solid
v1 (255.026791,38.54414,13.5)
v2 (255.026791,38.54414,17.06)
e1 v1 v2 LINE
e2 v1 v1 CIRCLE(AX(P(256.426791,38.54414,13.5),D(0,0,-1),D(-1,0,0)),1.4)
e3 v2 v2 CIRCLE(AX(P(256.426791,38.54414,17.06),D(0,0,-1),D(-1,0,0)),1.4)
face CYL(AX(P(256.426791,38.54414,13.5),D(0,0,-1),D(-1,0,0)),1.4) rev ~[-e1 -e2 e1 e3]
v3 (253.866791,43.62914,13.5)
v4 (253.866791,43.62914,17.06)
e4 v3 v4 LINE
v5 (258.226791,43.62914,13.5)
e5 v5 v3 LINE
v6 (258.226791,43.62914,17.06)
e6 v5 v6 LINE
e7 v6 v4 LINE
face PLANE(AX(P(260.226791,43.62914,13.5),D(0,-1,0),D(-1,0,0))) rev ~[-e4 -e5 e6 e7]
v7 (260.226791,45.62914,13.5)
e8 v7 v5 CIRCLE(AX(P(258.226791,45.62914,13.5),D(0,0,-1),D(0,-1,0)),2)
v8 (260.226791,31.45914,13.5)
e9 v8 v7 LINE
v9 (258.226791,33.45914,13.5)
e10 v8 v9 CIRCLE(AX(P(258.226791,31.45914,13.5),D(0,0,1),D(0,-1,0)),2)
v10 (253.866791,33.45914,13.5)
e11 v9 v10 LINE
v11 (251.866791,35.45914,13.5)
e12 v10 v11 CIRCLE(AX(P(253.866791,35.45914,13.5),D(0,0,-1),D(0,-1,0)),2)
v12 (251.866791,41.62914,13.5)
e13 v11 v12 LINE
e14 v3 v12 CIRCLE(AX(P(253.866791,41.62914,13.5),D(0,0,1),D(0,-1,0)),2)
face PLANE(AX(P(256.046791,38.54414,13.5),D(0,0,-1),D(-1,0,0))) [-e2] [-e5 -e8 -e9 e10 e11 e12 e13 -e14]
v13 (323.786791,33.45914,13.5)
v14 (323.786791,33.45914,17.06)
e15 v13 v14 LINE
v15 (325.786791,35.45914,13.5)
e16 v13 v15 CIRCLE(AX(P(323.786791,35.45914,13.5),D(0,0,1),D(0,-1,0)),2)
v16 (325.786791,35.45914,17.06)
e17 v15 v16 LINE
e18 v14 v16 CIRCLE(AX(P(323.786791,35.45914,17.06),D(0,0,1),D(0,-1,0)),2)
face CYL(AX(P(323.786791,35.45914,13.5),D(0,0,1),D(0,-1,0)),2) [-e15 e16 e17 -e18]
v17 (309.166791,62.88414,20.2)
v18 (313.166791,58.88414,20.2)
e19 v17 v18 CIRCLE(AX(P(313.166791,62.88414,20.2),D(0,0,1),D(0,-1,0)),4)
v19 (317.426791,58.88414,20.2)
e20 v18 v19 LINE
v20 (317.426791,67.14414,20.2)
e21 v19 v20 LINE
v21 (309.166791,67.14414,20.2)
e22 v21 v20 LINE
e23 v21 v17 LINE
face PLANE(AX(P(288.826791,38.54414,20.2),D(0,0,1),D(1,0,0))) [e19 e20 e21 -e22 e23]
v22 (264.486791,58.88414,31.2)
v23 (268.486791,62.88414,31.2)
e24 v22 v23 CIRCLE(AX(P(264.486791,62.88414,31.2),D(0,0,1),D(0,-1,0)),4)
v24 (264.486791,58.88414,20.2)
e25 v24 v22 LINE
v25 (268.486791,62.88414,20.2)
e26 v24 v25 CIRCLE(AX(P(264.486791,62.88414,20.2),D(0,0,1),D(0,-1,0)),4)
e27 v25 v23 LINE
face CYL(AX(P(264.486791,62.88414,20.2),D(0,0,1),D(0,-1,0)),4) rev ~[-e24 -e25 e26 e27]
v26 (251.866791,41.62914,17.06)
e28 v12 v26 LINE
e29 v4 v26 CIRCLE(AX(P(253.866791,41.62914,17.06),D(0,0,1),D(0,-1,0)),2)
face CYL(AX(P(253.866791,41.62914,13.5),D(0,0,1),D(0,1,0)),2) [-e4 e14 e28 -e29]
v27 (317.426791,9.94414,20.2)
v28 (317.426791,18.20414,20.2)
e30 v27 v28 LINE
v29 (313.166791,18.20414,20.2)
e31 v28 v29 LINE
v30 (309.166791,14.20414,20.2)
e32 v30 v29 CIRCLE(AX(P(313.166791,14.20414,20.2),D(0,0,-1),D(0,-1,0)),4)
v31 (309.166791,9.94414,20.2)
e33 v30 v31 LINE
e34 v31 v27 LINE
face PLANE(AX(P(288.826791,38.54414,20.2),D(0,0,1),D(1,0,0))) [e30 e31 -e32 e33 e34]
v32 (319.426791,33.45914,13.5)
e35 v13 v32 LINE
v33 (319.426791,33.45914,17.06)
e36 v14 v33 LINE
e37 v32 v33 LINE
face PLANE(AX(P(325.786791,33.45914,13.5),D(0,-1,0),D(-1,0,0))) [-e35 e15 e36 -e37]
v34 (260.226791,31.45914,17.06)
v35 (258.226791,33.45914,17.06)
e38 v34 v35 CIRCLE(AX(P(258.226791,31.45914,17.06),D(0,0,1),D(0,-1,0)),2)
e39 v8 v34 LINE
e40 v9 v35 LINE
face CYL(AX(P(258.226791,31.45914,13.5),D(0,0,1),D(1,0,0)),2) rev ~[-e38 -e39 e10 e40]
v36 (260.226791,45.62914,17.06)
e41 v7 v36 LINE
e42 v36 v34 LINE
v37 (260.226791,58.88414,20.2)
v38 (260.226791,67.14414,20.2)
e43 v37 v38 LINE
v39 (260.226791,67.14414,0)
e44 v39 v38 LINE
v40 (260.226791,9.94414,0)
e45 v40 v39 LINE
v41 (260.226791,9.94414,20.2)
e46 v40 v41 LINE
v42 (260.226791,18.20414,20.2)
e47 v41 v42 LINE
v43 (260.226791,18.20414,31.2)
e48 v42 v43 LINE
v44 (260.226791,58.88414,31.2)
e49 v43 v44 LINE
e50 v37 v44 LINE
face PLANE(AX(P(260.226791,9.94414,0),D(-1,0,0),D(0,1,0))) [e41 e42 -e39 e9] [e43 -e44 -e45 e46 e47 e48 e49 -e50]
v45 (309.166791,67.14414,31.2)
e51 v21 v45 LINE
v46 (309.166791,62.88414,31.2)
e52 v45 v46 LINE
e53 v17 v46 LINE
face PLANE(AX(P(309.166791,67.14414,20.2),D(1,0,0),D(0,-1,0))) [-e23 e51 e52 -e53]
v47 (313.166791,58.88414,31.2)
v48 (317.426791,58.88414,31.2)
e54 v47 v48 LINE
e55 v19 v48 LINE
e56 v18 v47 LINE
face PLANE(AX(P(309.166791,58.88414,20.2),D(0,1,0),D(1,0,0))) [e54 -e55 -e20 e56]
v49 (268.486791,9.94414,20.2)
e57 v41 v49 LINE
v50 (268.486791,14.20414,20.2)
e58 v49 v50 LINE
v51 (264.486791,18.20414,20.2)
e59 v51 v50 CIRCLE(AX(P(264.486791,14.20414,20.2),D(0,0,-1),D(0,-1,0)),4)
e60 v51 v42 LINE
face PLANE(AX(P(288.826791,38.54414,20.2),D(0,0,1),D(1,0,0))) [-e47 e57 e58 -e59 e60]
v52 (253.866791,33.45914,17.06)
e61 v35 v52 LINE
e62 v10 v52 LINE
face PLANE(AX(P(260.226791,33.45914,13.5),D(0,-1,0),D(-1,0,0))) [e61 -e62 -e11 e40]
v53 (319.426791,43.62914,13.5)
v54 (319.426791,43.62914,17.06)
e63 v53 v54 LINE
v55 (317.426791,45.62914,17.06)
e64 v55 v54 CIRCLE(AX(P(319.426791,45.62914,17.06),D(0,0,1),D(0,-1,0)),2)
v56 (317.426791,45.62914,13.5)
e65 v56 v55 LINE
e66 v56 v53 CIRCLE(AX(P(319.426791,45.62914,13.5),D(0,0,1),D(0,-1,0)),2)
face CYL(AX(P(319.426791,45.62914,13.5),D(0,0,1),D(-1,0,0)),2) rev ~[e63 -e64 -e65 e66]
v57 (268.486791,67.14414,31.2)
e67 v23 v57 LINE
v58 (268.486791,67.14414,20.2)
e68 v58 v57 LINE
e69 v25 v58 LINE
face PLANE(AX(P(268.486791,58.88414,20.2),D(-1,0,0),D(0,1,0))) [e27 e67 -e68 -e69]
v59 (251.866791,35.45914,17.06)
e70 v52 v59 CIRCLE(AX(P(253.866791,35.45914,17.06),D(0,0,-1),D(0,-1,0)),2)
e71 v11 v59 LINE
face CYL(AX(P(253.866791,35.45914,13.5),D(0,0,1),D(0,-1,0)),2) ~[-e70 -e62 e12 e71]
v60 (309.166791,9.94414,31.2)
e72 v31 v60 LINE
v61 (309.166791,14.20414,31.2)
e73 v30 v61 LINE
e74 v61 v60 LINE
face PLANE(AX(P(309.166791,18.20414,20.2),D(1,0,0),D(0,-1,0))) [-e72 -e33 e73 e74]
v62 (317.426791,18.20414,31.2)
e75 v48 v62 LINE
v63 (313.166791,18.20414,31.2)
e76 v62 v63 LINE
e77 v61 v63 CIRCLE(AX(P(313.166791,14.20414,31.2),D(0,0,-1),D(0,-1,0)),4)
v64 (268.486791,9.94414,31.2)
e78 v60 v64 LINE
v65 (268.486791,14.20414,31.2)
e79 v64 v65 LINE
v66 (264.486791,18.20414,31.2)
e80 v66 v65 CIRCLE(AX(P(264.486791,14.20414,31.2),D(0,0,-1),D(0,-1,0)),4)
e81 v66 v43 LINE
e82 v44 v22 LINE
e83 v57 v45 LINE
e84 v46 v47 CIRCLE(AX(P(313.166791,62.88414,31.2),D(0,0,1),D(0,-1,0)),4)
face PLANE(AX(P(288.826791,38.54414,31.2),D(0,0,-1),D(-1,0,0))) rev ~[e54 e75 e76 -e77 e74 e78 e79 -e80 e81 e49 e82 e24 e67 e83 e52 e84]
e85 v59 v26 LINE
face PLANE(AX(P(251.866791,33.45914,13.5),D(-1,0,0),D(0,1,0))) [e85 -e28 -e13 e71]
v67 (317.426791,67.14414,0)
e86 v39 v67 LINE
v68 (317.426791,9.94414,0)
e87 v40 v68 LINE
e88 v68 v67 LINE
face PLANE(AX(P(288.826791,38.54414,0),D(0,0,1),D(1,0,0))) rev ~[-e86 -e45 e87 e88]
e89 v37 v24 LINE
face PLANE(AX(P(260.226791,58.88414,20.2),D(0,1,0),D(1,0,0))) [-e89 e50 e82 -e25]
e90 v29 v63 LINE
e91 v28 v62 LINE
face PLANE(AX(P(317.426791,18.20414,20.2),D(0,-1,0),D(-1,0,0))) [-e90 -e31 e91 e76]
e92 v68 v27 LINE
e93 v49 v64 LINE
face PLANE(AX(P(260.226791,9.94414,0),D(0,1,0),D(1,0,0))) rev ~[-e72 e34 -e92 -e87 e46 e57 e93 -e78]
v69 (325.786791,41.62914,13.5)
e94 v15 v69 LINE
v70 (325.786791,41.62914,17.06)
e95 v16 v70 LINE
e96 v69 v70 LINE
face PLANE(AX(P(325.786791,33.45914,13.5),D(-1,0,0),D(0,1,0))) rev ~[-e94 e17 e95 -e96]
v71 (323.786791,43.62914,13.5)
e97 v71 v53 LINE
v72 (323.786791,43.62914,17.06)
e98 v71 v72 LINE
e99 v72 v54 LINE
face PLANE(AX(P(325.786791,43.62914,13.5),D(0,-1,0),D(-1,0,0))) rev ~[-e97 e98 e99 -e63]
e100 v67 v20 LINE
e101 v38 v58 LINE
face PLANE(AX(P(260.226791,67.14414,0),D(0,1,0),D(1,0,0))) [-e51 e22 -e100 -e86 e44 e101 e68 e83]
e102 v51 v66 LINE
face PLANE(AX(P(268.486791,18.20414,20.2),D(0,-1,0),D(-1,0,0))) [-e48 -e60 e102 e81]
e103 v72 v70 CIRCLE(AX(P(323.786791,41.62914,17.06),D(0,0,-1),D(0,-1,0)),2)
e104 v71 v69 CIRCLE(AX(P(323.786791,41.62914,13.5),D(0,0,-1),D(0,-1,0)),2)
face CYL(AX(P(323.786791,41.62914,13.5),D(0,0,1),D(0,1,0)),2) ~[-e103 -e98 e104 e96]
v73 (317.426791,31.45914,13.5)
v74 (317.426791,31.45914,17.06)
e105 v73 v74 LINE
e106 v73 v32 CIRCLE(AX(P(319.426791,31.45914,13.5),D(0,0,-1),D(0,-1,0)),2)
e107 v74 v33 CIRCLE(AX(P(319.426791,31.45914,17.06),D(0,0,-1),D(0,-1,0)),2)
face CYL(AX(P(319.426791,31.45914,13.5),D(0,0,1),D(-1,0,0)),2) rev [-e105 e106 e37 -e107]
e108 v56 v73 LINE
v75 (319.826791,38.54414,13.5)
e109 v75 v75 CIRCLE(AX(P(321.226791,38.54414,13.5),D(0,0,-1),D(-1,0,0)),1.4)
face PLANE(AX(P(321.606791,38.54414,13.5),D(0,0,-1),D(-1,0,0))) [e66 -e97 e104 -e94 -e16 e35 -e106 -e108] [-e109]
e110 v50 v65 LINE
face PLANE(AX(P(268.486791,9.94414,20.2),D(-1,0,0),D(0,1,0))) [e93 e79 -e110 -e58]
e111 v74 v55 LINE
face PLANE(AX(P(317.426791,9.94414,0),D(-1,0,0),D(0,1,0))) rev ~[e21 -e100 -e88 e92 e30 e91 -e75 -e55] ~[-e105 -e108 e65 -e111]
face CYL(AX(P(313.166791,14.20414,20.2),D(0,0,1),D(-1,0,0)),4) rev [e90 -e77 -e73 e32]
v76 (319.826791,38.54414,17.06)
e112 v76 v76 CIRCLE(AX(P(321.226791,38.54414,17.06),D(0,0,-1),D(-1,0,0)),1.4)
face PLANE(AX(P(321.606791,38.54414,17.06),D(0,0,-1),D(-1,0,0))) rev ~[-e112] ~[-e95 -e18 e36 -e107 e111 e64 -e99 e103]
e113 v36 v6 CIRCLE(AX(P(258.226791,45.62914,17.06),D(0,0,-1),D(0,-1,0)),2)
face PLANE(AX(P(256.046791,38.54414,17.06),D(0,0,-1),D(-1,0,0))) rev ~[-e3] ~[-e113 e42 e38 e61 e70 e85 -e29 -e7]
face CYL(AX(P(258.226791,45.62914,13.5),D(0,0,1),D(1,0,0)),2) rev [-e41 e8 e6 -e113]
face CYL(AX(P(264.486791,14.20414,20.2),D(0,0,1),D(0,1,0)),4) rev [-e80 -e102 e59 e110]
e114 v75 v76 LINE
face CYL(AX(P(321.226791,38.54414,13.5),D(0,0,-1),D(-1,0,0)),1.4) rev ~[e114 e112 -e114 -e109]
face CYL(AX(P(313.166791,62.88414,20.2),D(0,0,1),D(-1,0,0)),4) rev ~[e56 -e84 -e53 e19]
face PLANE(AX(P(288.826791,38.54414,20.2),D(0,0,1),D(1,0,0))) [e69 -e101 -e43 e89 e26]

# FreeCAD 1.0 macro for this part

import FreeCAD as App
import Part
import Sketcher
Q = App.Units.Quantity


def edges_at(feature, points):
    """Names of the edges that pass closest to the given points."""
    edges = feature.Shape.Edges
    near = lambda p: min(range(len(edges)), key=lambda i: edges[i].distToShape(Part.Vertex(*p))[0])
    return sorted({f"Edge{near(p) + 1}" for p in points})


def add_polygon(sketch, points):
    """Adds a closed chain of lines whose ends are joined by coincident constraints."""
    first, n = sketch.GeometryCount, len(points)
    for a, b in zip(points, points[1:] + points[:1]):
        sketch.addGeometry(Part.LineSegment(App.Vector(*a, 0), App.Vector(*b, 0)), False)
    for i in range(n):
        sketch.addConstraint(Sketcher.Constraint("Coincident", first + i, 2, first + (i + 1) % n, 1))

doc = App.newDocument("Part")
body = doc.addObject("PartDesign::Body", "Body")

sketch1 = doc.addObject("Sketcher::SketchObject", "Sketch")
body.addObject(sketch1)
sketch1.AttachmentSupport = (doc.XY_Plane, [""])
sketch1.MapMode = "FlatFace"
add_polygon(sketch1, [(260, 67), (260, 10), (317, 10), (317, 67)])
sketch1.addConstraint([
    Sketcher.Constraint("Vertical", 0),
    Sketcher.Constraint("Horizontal", 1),
    Sketcher.Constraint("Vertical", 2),
    Sketcher.Constraint("Horizontal", 3),
    Sketcher.Constraint("Equal", 3, 0),
    Sketcher.Constraint("DistanceX", 1, 1, 1, 2, Q("57.2 mm")),
    Sketcher.Constraint("DistanceX", -1, 1, 0, 2, Q("260.226791 mm")),
    Sketcher.Constraint("DistanceY", -1, 1, 0, 2, Q("9.94414 mm")),
])
pad1 = doc.addObject("PartDesign::Pad", "Pad")
body.addObject(pad1)
pad1.Profile = sketch1
pad1.Length = 20.2

sketch2 = doc.addObject("Sketcher::SketchObject", "Sketch001")
body.addObject(sketch2)
sketch2.AttachmentSupport = (doc.XY_Plane, [""])
sketch2.MapMode = "FlatFace"
sketch2.AttachmentOffset = App.Placement(App.Vector(0, 0, 20.2), App.Rotation())
add_polygon(sketch2, [(268, 59), (260, 59), (260, 18), (268, 18), (268, 10), (309, 10), (309, 18), (317, 18), (317, 59), (309, 59), (309, 67), (268, 67)])
sketch2.addConstraint([
    Sketcher.Constraint("Horizontal", 0),
    Sketcher.Constraint("Vertical", 1),
    Sketcher.Constraint("Horizontal", 2),
    Sketcher.Constraint("Vertical", 3),
    Sketcher.Constraint("Horizontal", 4),
    Sketcher.Constraint("Vertical", 5),
    Sketcher.Constraint("Horizontal", 6),
    Sketcher.Constraint("Vertical", 7),
    Sketcher.Constraint("Horizontal", 8),
    Sketcher.Constraint("Vertical", 9),
    Sketcher.Constraint("Horizontal", 10),
    Sketcher.Constraint("Vertical", 11),
    Sketcher.Constraint("Horizontal", 2, 2, 5, 2),
    Sketcher.Constraint("Horizontal", 0, 2, 7, 2),
    Sketcher.Constraint("Vertical", 5, 2, 8, 2),
    Sketcher.Constraint("Vertical", 3, 2, 10, 2),
    Sketcher.Constraint("Equal", 2, 6),
    Sketcher.Constraint("Equal", 10, 1),
    Sketcher.Constraint("Equal", 8, 3),
    Sketcher.Constraint("Equal", 5, 9),
    Sketcher.Constraint("DistanceX", 0, 2, 0, 1, Q("8.26 mm")),
    Sketcher.Constraint("DistanceX", 4, 1, 4, 2, Q("40.68 mm")),
    Sketcher.Constraint("DistanceX", -1, 1, 0, 2, Q("260.226791 mm")),
    Sketcher.Constraint("DistanceY", -1, 1, 0, 2, Q("58.88414 mm")),
])
pad2 = doc.addObject("PartDesign::Pad", "Pad001")
body.addObject(pad2)
pad2.Profile = sketch2
pad2.Length = 11
doc.recompute()

fillet = doc.addObject("PartDesign::Fillet", "Fillet")
body.addObject(fillet)
fillet.Base = (pad2, edges_at(pad2, [
    (268.487, 58.884, 25.7),
    (268.487, 18.204, 25.7),
    (309.167, 18.204, 25.7),
    (309.167, 58.884, 25.7),
]))
fillet.Radius = 4

sketch3 = doc.addObject("Sketcher::SketchObject", "Sketch002")
body.addObject(sketch3)
sketch3.AttachmentSupport = (doc.XY_Plane, [""])
sketch3.MapMode = "FlatFace"
sketch3.AttachmentOffset = App.Placement(App.Vector(0, 0, 13.5), App.Rotation())
add_polygon(sketch3, [(260, 44), (260, 33), (252, 33), (252, 44)])
add_polygon(sketch3, [(326, 44), (326, 33), (317, 33), (317, 44)])
sketch3.addConstraint([
    Sketcher.Constraint("Vertical", 0),
    Sketcher.Constraint("Horizontal", 1),
    Sketcher.Constraint("Vertical", 2),
    Sketcher.Constraint("Horizontal", 3),
    Sketcher.Constraint("Vertical", 4),
    Sketcher.Constraint("Horizontal", 5),
    Sketcher.Constraint("Vertical", 6),
    Sketcher.Constraint("Horizontal", 7),
    Sketcher.Constraint("Horizontal", 1, 2, 4, 2),
    Sketcher.Constraint("Horizontal", 3, 2, 6, 2),
    Sketcher.Constraint("Equal", 3, 5),
    Sketcher.Constraint("DistanceX", 1, 2, 1, 1, Q("8.36 mm")),
    Sketcher.Constraint("DistanceY", 0, 2, 0, 1, Q("10.17 mm")),
    Sketcher.Constraint("DistanceX", 0, 2, 5, 2, Q("57.2 mm")),
    Sketcher.Constraint("DistanceX", -1, 1, 0, 2, Q("260.226791 mm")),
    Sketcher.Constraint("DistanceY", -1, 1, 0, 2, Q("33.45914 mm")),
])
pad3 = doc.addObject("PartDesign::Pad", "Pad002")
body.addObject(pad3)
pad3.Profile = sketch3
pad3.Length = 3.56
doc.recompute()

fillet2 = doc.addObject("PartDesign::Fillet", "Fillet001")
body.addObject(fillet2)
fillet2.Base = (pad3, edges_at(pad3, [
    (251.867, 43.629, 15.28),
    (251.867, 33.459, 15.28),
    (260.227, 33.459, 15.28),
    (260.227, 43.629, 15.28),
    (317.427, 43.629, 15.28),
    (317.427, 33.459, 15.28),
    (325.787, 33.459, 15.28),
    (325.787, 43.629, 15.28),
]))
fillet2.Radius = 2

sketch4 = doc.addObject("Sketcher::SketchObject", "Sketch003")
body.addObject(sketch4)
sketch4.AttachmentSupport = (doc.XY_Plane, [""])
sketch4.MapMode = "FlatFace"
sketch4.AttachmentOffset = App.Placement(App.Vector(0, 0, 13.5), App.Rotation())
sketch4.addGeometry(Part.Circle(App.Vector(256.4, 38.5, 0), App.Vector(0, 0, 1), 1.4), False)
sketch4.addConstraint([
    Sketcher.Constraint("Diameter", 0, Q("2.8 mm")),
    Sketcher.Constraint("DistanceX", -1, 1, 0, 3, Q("256.426791 mm")),
    Sketcher.Constraint("DistanceY", -1, 1, 0, 3, Q("38.54414 mm")),
])
pocket1 = doc.addObject("PartDesign::Pocket", "Pocket")
body.addObject(pocket1)
pocket1.Profile = sketch4
pocket1.Type = "UpToFirst"
pocket1.Reversed = True

sketch5 = doc.addObject("Sketcher::SketchObject", "Sketch004")
body.addObject(sketch5)
sketch5.AttachmentSupport = (doc.XY_Plane, [""])
sketch5.MapMode = "FlatFace"
sketch5.AttachmentOffset = App.Placement(App.Vector(0, 0, 13.5), App.Rotation())
sketch5.addGeometry(Part.Circle(App.Vector(321.2, 38.5, 0), App.Vector(0, 0, 1), 1.4), False)
sketch5.addConstraint([
    Sketcher.Constraint("Diameter", 0, Q("2.8 mm")),
    Sketcher.Constraint("DistanceX", -1, 1, 0, 3, Q("321.226791 mm")),
    Sketcher.Constraint("DistanceY", -1, 1, 0, 3, Q("38.54414 mm")),
])
pocket2 = doc.addObject("PartDesign::Pocket", "Pocket001")
body.addObject(pocket2)
pocket2.Profile = sketch5
pocket2.Type = "UpToFirst"
pocket2.Reversed = True

doc.recompute()
